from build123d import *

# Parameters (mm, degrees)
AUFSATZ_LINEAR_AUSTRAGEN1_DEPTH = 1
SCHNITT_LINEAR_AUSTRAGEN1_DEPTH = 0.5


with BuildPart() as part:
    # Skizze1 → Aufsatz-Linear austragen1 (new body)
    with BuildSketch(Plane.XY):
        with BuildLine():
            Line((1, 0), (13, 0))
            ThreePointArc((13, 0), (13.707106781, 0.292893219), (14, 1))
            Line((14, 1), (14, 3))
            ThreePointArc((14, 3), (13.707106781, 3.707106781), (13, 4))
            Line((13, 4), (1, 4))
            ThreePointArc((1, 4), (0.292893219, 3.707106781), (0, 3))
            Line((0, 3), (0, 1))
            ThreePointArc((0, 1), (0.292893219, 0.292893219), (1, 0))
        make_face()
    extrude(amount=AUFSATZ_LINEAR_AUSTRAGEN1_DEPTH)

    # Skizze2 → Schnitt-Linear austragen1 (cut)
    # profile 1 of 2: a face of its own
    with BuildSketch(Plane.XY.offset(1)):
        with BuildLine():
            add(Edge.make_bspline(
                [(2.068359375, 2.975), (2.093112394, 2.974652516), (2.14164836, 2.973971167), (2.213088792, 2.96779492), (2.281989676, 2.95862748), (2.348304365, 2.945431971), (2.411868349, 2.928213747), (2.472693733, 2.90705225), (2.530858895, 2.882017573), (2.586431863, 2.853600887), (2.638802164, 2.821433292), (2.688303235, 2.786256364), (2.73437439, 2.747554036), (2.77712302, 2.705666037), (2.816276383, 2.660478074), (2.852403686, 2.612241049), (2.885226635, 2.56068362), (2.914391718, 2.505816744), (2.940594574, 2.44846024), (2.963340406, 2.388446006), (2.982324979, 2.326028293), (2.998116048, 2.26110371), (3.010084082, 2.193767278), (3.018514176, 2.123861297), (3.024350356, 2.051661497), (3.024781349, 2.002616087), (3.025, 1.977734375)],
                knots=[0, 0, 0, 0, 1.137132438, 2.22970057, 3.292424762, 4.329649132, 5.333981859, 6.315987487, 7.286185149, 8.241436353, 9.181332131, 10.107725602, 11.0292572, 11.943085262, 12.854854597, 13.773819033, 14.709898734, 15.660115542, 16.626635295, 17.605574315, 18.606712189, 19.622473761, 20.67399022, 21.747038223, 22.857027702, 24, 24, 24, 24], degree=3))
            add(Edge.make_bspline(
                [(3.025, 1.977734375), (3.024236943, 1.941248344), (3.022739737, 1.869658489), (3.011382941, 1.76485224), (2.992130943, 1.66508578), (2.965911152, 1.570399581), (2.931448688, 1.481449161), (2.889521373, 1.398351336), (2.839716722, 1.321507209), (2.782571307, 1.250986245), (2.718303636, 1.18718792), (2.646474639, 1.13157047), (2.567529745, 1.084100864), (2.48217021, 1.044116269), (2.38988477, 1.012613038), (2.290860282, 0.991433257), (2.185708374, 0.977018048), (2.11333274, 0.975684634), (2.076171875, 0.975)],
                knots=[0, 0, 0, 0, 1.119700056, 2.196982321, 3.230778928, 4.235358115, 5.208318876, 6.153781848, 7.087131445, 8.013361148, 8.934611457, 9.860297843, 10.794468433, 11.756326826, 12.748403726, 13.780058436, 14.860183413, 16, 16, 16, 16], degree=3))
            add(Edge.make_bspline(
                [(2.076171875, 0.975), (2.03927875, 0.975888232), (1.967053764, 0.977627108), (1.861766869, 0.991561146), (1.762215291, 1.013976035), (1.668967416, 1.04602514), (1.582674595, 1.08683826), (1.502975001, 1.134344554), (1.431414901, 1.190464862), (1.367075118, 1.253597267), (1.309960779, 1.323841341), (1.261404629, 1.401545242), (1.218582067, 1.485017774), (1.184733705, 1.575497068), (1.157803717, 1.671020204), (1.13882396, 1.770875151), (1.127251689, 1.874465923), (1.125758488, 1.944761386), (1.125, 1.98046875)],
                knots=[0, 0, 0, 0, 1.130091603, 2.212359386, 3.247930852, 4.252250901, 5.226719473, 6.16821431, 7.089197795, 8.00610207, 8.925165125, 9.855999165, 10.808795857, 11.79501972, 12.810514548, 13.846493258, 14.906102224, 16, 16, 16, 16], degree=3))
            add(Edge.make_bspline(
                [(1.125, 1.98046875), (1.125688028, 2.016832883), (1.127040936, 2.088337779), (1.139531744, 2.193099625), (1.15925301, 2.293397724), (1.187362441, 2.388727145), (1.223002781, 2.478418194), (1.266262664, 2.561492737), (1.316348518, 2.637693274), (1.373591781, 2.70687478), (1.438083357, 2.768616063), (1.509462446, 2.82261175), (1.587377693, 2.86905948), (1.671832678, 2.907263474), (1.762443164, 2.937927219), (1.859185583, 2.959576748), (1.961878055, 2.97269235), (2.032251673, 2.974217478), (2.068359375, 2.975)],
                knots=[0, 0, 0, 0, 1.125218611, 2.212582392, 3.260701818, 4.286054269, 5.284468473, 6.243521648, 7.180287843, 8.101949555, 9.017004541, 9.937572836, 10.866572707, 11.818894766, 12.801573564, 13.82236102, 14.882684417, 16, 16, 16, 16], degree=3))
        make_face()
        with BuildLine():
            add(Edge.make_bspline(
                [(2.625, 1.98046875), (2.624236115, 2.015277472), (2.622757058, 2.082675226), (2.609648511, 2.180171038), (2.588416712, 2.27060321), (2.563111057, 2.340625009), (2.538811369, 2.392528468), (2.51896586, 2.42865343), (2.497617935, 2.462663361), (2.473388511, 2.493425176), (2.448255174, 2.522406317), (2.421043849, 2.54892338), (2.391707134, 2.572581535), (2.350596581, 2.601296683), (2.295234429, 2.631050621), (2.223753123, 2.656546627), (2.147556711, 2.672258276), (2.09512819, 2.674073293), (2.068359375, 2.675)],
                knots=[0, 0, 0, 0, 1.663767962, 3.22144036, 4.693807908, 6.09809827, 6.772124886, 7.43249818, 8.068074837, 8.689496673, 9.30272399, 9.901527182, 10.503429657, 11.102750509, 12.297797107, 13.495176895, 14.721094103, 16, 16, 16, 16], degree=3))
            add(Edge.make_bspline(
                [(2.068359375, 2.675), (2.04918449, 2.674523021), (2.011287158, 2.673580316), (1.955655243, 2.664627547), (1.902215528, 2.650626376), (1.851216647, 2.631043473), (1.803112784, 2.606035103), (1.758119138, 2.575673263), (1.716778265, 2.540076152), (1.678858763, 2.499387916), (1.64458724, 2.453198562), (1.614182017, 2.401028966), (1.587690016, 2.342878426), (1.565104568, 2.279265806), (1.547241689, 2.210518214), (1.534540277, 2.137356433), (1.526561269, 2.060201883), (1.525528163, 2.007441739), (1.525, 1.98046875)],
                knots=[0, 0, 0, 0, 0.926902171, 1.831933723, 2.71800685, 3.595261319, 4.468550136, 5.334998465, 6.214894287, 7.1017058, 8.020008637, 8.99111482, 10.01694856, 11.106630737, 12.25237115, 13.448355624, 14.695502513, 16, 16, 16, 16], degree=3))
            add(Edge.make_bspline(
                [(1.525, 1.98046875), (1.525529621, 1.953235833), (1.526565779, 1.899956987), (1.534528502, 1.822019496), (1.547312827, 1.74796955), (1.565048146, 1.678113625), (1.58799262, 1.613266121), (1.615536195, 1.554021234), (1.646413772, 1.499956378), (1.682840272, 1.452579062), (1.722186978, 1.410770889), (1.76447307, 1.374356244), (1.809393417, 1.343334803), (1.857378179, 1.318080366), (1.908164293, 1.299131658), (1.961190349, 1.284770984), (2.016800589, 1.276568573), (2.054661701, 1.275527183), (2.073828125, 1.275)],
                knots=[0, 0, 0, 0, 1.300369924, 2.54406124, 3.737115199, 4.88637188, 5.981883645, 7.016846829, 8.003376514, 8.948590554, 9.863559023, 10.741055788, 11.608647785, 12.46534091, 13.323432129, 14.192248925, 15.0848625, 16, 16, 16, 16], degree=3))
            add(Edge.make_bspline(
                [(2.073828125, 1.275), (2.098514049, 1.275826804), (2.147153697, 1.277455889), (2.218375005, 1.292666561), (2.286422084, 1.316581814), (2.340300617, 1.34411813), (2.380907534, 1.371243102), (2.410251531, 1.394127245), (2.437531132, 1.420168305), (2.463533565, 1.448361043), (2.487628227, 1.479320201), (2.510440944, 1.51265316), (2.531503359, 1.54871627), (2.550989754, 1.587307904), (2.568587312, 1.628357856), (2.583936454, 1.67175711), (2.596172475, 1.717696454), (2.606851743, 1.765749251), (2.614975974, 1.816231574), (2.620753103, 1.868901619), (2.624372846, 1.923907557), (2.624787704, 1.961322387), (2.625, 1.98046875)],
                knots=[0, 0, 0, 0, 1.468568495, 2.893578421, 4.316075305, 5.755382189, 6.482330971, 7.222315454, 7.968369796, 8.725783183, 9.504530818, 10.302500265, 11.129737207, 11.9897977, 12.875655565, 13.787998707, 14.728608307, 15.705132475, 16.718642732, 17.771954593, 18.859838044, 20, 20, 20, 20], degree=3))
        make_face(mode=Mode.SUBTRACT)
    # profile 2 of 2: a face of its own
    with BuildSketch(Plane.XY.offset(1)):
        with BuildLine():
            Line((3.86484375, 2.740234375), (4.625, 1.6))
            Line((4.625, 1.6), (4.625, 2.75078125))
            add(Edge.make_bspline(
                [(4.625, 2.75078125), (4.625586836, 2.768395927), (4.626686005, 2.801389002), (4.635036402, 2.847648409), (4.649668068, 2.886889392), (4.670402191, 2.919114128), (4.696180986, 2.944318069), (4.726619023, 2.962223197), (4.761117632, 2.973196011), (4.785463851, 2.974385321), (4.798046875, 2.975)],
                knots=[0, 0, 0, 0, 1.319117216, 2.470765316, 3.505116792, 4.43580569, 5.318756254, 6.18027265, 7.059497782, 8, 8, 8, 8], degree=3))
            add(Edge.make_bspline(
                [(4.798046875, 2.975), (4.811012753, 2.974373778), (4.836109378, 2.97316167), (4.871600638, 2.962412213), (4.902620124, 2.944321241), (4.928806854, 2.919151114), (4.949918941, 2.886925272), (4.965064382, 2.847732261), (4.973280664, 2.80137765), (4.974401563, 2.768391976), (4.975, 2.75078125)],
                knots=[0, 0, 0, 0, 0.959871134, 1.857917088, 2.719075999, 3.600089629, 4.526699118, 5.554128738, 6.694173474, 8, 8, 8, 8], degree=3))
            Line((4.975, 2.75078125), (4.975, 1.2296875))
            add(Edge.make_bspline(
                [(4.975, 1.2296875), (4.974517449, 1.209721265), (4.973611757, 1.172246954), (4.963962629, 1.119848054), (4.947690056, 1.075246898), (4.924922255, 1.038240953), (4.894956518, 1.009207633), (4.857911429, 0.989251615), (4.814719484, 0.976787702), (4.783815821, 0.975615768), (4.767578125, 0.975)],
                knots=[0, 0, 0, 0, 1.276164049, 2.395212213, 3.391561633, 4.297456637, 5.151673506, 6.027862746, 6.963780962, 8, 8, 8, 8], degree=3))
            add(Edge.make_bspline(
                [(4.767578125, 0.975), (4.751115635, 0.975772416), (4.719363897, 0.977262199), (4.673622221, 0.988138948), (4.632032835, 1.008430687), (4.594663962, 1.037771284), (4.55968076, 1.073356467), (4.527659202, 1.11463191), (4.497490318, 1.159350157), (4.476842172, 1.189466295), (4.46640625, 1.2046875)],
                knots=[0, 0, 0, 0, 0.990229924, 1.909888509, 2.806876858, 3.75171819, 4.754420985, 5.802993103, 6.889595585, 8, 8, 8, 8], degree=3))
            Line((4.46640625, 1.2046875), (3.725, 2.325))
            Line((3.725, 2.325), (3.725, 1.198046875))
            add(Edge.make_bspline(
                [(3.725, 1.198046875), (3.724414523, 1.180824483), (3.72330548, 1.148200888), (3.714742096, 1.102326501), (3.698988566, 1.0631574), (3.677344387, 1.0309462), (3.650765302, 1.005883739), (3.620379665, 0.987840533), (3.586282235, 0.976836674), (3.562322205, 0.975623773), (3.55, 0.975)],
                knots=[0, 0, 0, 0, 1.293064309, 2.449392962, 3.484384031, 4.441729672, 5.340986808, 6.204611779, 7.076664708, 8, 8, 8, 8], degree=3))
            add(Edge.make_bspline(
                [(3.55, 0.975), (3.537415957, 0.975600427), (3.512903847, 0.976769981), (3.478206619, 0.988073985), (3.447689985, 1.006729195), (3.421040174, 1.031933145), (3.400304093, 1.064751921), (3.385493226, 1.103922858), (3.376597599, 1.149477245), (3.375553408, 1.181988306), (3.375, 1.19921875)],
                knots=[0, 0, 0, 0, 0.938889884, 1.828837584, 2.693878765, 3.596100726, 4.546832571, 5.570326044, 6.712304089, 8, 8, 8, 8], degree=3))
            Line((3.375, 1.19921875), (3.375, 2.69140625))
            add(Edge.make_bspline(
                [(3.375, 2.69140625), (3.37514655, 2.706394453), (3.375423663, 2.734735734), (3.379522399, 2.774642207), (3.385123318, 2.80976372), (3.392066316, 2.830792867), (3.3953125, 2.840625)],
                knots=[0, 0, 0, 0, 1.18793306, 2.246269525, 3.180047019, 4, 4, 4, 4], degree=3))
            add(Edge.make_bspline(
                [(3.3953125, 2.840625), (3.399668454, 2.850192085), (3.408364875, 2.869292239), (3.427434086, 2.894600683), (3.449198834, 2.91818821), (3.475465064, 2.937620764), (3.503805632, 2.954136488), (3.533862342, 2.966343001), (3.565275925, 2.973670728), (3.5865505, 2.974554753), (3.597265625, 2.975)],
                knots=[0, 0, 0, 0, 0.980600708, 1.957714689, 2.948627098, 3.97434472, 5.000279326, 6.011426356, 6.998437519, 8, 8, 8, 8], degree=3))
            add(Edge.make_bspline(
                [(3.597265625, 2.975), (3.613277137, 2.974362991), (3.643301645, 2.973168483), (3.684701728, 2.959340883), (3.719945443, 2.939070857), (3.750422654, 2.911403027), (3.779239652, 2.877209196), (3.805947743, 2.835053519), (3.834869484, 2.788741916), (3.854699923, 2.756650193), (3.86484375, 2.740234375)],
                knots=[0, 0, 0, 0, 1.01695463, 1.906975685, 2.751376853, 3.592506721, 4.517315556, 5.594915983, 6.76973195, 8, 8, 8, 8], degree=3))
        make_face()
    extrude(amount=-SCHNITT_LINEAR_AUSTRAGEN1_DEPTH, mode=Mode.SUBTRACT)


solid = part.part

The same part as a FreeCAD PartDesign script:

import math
import FreeCAD as App
import Part
import Sketcher

doc = App.newDocument("Part")
body = doc.addObject("PartDesign::Body", "Body")

# Sketch on XY plane
sketch1 = body.newObject("Sketcher::SketchObject", "Sketch")
sketch1.AttachmentSupport = (doc.getObject("XY_Plane"), [""])
sketch1.MapMode = "FlatFace"
sketch1.addGeometry([
    Part.LineSegment(App.Vector(1, 0, 0), App.Vector(13, 0, 0)),  # 0
    Part.ArcOfCircle(Part.Circle(App.Vector(13, 1, 0), App.Vector(0, 0, 1), 1), math.radians(-90), math.radians(0)),  # 1
    Part.LineSegment(App.Vector(14, 1, 0), App.Vector(14, 3, 0)),  # 2
    Part.ArcOfCircle(Part.Circle(App.Vector(13, 3, 0), App.Vector(0, 0, 1), 1), math.radians(0), math.radians(90)),  # 3
    Part.LineSegment(App.Vector(13, 4, 0), App.Vector(1, 4, 0)),  # 4
    Part.ArcOfCircle(Part.Circle(App.Vector(1, 3, 0), App.Vector(0, 0, 1), 1), math.radians(90), math.radians(180)),  # 5
    Part.LineSegment(App.Vector(0, 3, 0), App.Vector(0, 1, 0)),  # 6
    Part.ArcOfCircle(Part.Circle(App.Vector(1, 1, 0), App.Vector(0, 0, 1), 1), math.radians(-180), math.radians(-90)),  # 7
], False)
sketch1.addConstraint([
    Sketcher.Constraint("Tangent", 0, 2, 1, 1),
    Sketcher.Constraint("Tangent", 1, 2, 2, 1),
    Sketcher.Constraint("Tangent", 2, 2, 3, 1),
    Sketcher.Constraint("Tangent", 3, 2, 4, 1),
    Sketcher.Constraint("Tangent", 4, 2, 5, 1),
    Sketcher.Constraint("Tangent", 5, 2, 6, 1),
    Sketcher.Constraint("Tangent", 6, 2, 7, 1),
    Sketcher.Constraint("Tangent", 7, 2, 0, 1),
    Sketcher.Constraint("Horizontal", 0),
    Sketcher.Constraint("Vertical", 2),
    Sketcher.Constraint("Horizontal", 4),
    Sketcher.Constraint("Vertical", 6),
    Sketcher.Constraint("Equal", 1, 3),
    Sketcher.Constraint("Equal", 3, 5),
    Sketcher.Constraint("Equal", 5, 7),
    Sketcher.Constraint("PointOnObject", 0, 2, -1),
    Sketcher.Constraint("PointOnObject", 5, 2, -2),
    Sketcher.Constraint("Radius", 1, 1.0),
    Sketcher.Constraint("DistanceX", 0, 1, 0, 2, 12.0),
    Sketcher.Constraint("DistanceY", 2, 1, 2, 2, 2.0),
])
pad1 = body.newObject("PartDesign::Pad", "Pad")
pad1.Profile = sketch1
pad1.Length = 1

# Sketch on XY plane
sketch2 = body.newObject("Sketcher::SketchObject", "Sketch001")
sketch2.AttachmentSupport = (doc.getObject("XY_Plane"), [""])
sketch2.MapMode = "FlatFace"
sketch2.AttachmentOffset = App.Placement(App.Vector(0, 0, 1), App.Rotation())
sketch2.addGeometry([
    Part.BSplineCurve([App.Vector(2.068359, 2.975, 0), App.Vector(2.093112, 2.974653, 0), App.Vector(2.141648, 2.973971, 0), App.Vector(2.213089, 2.967795, 0), App.Vector(2.28199, 2.958627, 0), App.Vector(2.348304, 2.945432, 0), App.Vector(2.411868, 2.928214, 0), App.Vector(2.472694, 2.907052, 0), App.Vector(2.530859, 2.882018, 0), App.Vector(2.586432, 2.853601, 0), App.Vector(2.638802, 2.821433, 0), App.Vector(2.688303, 2.786256, 0), App.Vector(2.734374, 2.747554, 0), App.Vector(2.777123, 2.705666, 0), App.Vector(2.816276, 2.660478, 0), App.Vector(2.852404, 2.612241, 0), App.Vector(2.885227, 2.560684, 0), App.Vector(2.914392, 2.505817, 0), App.Vector(2.940595, 2.44846, 0), App.Vector(2.96334, 2.388446, 0), App.Vector(2.982325, 2.326028, 0), App.Vector(2.998116, 2.261104, 0), App.Vector(3.010084, 2.193767, 0), App.Vector(3.018514, 2.123861, 0), App.Vector(3.02435, 2.051661, 0), App.Vector(3.024781, 2.002616, 0), App.Vector(3.025, 1.977734, 0)], [4, 1, 1, 1, 1, 1, 1, 1, 1, 1, 1, 1, 1, 1, 1, 1, 1, 1, 1, 1, 1, 1, 1, 1, 4], [0, 1.137132438, 2.22970057, 3.292424762, 4.329649132, 5.333981859, 6.315987487, 7.286185149, 8.241436353, 9.181332131, 10.107725602, 11.0292572, 11.943085262, 12.854854597, 13.773819033, 14.709898734, 15.660115542, 16.626635295, 17.605574315, 18.606712189, 19.622473761, 20.67399022, 21.747038223, 22.857027702, 24], False, 3, [1, 1, 1, 1, 1, 1, 1, 1, 1, 1, 1, 1, 1, 1, 1, 1, 1, 1, 1, 1, 1, 1, 1, 1, 1, 1, 1], False),  # 0
    Part.BSplineCurve([App.Vector(1.125, 1.980469, 0), App.Vector(1.125688, 2.016833, 0), App.Vector(1.127041, 2.088338, 0), App.Vector(1.139532, 2.1931, 0), App.Vector(1.159253, 2.293398, 0), App.Vector(1.187362, 2.388727, 0), App.Vector(1.223003, 2.478418, 0), App.Vector(1.266263, 2.561493, 0), App.Vector(1.316349, 2.637693, 0), App.Vector(1.373592, 2.706875, 0), App.Vector(1.438083, 2.768616, 0), App.Vector(1.509462, 2.822612, 0), App.Vector(1.587378, 2.869059, 0), App.Vector(1.671833, 2.907263, 0), App.Vector(1.762443, 2.937927, 0), App.Vector(1.859186, 2.959577, 0), App.Vector(1.961878, 2.972692, 0), App.Vector(2.032252, 2.974217, 0), App.Vector(2.068359, 2.975, 0)], [4, 1, 1, 1, 1, 1, 1, 1, 1, 1, 1, 1, 1, 1, 1, 1, 4], [0, 1.125218611, 2.212582392, 3.260701818, 4.286054269, 5.284468473, 6.243521648, 7.180287843, 8.101949555, 9.017004541, 9.937572836, 10.866572707, 11.818894766, 12.801573564, 13.82236102, 14.882684417, 16], False, 3, [1, 1, 1, 1, 1, 1, 1, 1, 1, 1, 1, 1, 1, 1, 1, 1, 1, 1, 1], False),  # 1
    Part.BSplineCurve([App.Vector(2.076172, 0.975, 0), App.Vector(2.039279, 0.975888, 0), App.Vector(1.967054, 0.977627, 0), App.Vector(1.861767, 0.991561, 0), App.Vector(1.762215, 1.013976, 0), App.Vector(1.668967, 1.046025, 0), App.Vector(1.582675, 1.086838, 0), App.Vector(1.502975, 1.134345, 0), App.Vector(1.431415, 1.190465, 0), App.Vector(1.367075, 1.253597, 0), App.Vector(1.309961, 1.323841, 0), App.Vector(1.261405, 1.401545, 0), App.Vector(1.218582, 1.485018, 0), App.Vector(1.184734, 1.575497, 0), App.Vector(1.157804, 1.67102, 0), App.Vector(1.138824, 1.770875, 0), App.Vector(1.127252, 1.874466, 0), App.Vector(1.125758, 1.944761, 0), App.Vector(1.125, 1.980469, 0)], [4, 1, 1, 1, 1, 1, 1, 1, 1, 1, 1, 1, 1, 1, 1, 1, 4], [0, 1.130091603, 2.212359386, 3.247930852, 4.252250901, 5.226719473, 6.16821431, 7.089197795, 8.00610207, 8.925165125, 9.855999165, 10.808795857, 11.79501972, 12.810514548, 13.846493258, 14.906102224, 16], False, 3, [1, 1, 1, 1, 1, 1, 1, 1, 1, 1, 1, 1, 1, 1, 1, 1, 1, 1, 1], False),  # 2
    Part.BSplineCurve([App.Vector(3.025, 1.977734, 0), App.Vector(3.024237, 1.941248, 0), App.Vector(3.02274, 1.869658, 0), App.Vector(3.011383, 1.764852, 0), App.Vector(2.992131, 1.665086, 0), App.Vector(2.965911, 1.5704, 0), App.Vector(2.931449, 1.481449, 0), App.Vector(2.889521, 1.398351, 0), App.Vector(2.839717, 1.321507, 0), App.Vector(2.782571, 1.250986, 0), App.Vector(2.718304, 1.187188, 0), App.Vector(2.646475, 1.13157, 0), App.Vector(2.56753, 1.084101, 0), App.Vector(2.48217, 1.044116, 0), App.Vector(2.389885, 1.012613, 0), App.Vector(2.29086, 0.991433, 0), App.Vector(2.185708, 0.977018, 0), App.Vector(2.113333, 0.975685, 0), App.Vector(2.076172, 0.975, 0)], [4, 1, 1, 1, 1, 1, 1, 1, 1, 1, 1, 1, 1, 1, 1, 1, 4], [0, 1.119700056, 2.196982321, 3.230778928, 4.235358115, 5.208318876, 6.153781848, 7.087131445, 8.013361148, 8.934611457, 9.860297843, 10.794468433, 11.756326826, 12.748403726, 13.780058436, 14.860183413, 16], False, 3, [1, 1, 1, 1, 1, 1, 1, 1, 1, 1, 1, 1, 1, 1, 1, 1, 1, 1, 1], False),  # 3
    Part.BSplineCurve([App.Vector(2.073828, 1.275, 0), App.Vector(2.098514, 1.275827, 0), App.Vector(2.147154, 1.277456, 0), App.Vector(2.218375, 1.292667, 0), App.Vector(2.286422, 1.316582, 0), App.Vector(2.340301, 1.344118, 0), App.Vector(2.380908, 1.371243, 0), App.Vector(2.410252, 1.394127, 0), App.Vector(2.437531, 1.420168, 0), App.Vector(2.463534, 1.448361, 0), App.Vector(2.487628, 1.47932, 0), App.Vector(2.510441, 1.512653, 0), App.Vector(2.531503, 1.548716, 0), App.Vector(2.55099, 1.587308, 0), App.Vector(2.568587, 1.628358, 0), App.Vector(2.583936, 1.671757, 0), App.Vector(2.596172, 1.717696, 0), App.Vector(2.606852, 1.765749, 0), App.Vector(2.614976, 1.816232, 0), App.Vector(2.620753, 1.868902, 0), App.Vector(2.624373, 1.923908, 0), App.Vector(2.624788, 1.961322, 0), App.Vector(2.625, 1.980469, 0)], [4, 1, 1, 1, 1, 1, 1, 1, 1, 1, 1, 1, 1, 1, 1, 1, 1, 1, 1, 1, 4], [0, 1.468568495, 2.893578421, 4.316075305, 5.755382189, 6.482330971, 7.222315454, 7.968369796, 8.725783183, 9.504530818, 10.302500265, 11.129737207, 11.9897977, 12.875655565, 13.787998707, 14.728608307, 15.705132475, 16.718642732, 17.771954593, 18.859838044, 20], False, 3, [1, 1, 1, 1, 1, 1, 1, 1, 1, 1, 1, 1, 1, 1, 1, 1, 1, 1, 1, 1, 1, 1, 1], False),  # 4
    Part.BSplineCurve([App.Vector(1.525, 1.980469, 0), App.Vector(1.52553, 1.953236, 0), App.Vector(1.526566, 1.899957, 0), App.Vector(1.534529, 1.822019, 0), App.Vector(1.547313, 1.74797, 0), App.Vector(1.565048, 1.678114, 0), App.Vector(1.587993, 1.613266, 0), App.Vector(1.615536, 1.554021, 0), App.Vector(1.646414, 1.499956, 0), App.Vector(1.68284, 1.452579, 0), App.Vector(1.722187, 1.410771, 0), App.Vector(1.764473, 1.374356, 0), App.Vector(1.809393, 1.343335, 0), App.Vector(1.857378, 1.31808, 0), App.Vector(1.908164, 1.299132, 0), App.Vector(1.96119, 1.284771, 0), App.Vector(2.016801, 1.276569, 0), App.Vector(2.054662, 1.275527, 0), App.Vector(2.073828, 1.275, 0)], [4, 1, 1, 1, 1, 1, 1, 1, 1, 1, 1, 1, 1, 1, 1, 1, 4], [0, 1.300369924, 2.54406124, 3.737115199, 4.88637188, 5.981883645, 7.016846829, 8.003376514, 8.948590554, 9.863559023, 10.741055788, 11.608647785, 12.46534091, 13.323432129, 14.192248925, 15.0848625, 16], False, 3, [1, 1, 1, 1, 1, 1, 1, 1, 1, 1, 1, 1, 1, 1, 1, 1, 1, 1, 1], False),  # 5
    Part.BSplineCurve([App.Vector(2.068359, 2.675, 0), App.Vector(2.049184, 2.674523, 0), App.Vector(2.011287, 2.67358, 0), App.Vector(1.955655, 2.664628, 0), App.Vector(1.902216, 2.650626, 0), App.Vector(1.851217, 2.631043, 0), App.Vector(1.803113, 2.606035, 0), App.Vector(1.758119, 2.575673, 0), App.Vector(1.716778, 2.540076, 0), App.Vector(1.678859, 2.499388, 0), App.Vector(1.644587, 2.453199, 0), App.Vector(1.614182, 2.401029, 0), App.Vector(1.58769, 2.342878, 0), App.Vector(1.565105, 2.279266, 0), App.Vector(1.547242, 2.210518, 0), App.Vector(1.53454, 2.137356, 0), App.Vector(1.526561, 2.060202, 0), App.Vector(1.525528, 2.007442, 0), App.Vector(1.525, 1.980469, 0)], [4, 1, 1, 1, 1, 1, 1, 1, 1, 1, 1, 1, 1, 1, 1, 1, 4], [0, 0.926902171, 1.831933723, 2.71800685, 3.595261319, 4.468550136, 5.334998465, 6.214894287, 7.1017058, 8.020008637, 8.99111482, 10.01694856, 11.106630737, 12.25237115, 13.448355624, 14.695502513, 16], False, 3, [1, 1, 1, 1, 1, 1, 1, 1, 1, 1, 1, 1, 1, 1, 1, 1, 1, 1, 1], False),  # 6
    Part.BSplineCurve([App.Vector(2.625, 1.980469, 0), App.Vector(2.624236, 2.015277, 0), App.Vector(2.622757, 2.082675, 0), App.Vector(2.609649, 2.180171, 0), App.Vector(2.588417, 2.270603, 0), App.Vector(2.563111, 2.340625, 0), App.Vector(2.538811, 2.392528, 0), App.Vector(2.518966, 2.428653, 0), App.Vector(2.497618, 2.462663, 0), App.Vector(2.473389, 2.493425, 0), App.Vector(2.448255, 2.522406, 0), App.Vector(2.421044, 2.548923, 0), App.Vector(2.391707, 2.572582, 0), App.Vector(2.350597, 2.601297, 0), App.Vector(2.295234, 2.631051, 0), App.Vector(2.223753, 2.656547, 0), App.Vector(2.147557, 2.672258, 0), App.Vector(2.095128, 2.674073, 0), App.Vector(2.068359, 2.675, 0)], [4, 1, 1, 1, 1, 1, 1, 1, 1, 1, 1, 1, 1, 1, 1, 1, 4], [0, 1.663767962, 3.22144036, 4.693807908, 6.09809827, 6.772124886, 7.43249818, 8.068074837, 8.689496673, 9.30272399, 9.901527182, 10.503429657, 11.102750509, 12.297797107, 13.495176895, 14.721094103, 16], False, 3, [1, 1, 1, 1, 1, 1, 1, 1, 1, 1, 1, 1, 1, 1, 1, 1, 1, 1, 1], False),  # 7
    Part.LineSegment(App.Vector(4.625, 1.6, 0), App.Vector(3.864844, 2.740234, 0)),  # 8
    Part.BSplineCurve([App.Vector(3.597266, 2.975, 0), App.Vector(3.613277, 2.974363, 0), App.Vector(3.643302, 2.973168, 0), App.Vector(3.684702, 2.959341, 0), App.Vector(3.719945, 2.939071, 0), App.Vector(3.750423, 2.911403, 0), App.Vector(3.77924, 2.877209, 0), App.Vector(3.805948, 2.835054, 0), App.Vector(3.834869, 2.788742, 0), App.Vector(3.8547, 2.75665, 0), App.Vector(3.864844, 2.740234, 0)], [4, 1, 1, 1, 1, 1, 1, 1, 4], [0, 1.01695463, 1.906975685, 2.751376853, 3.592506721, 4.517315556, 5.594915983, 6.76973195, 8], False, 3, [1, 1, 1, 1, 1, 1, 1, 1, 1, 1, 1], False),  # 9
    Part.BSplineCurve([App.Vector(3.395313, 2.840625, 0), App.Vector(3.399668, 2.850192, 0), App.Vector(3.408365, 2.869292, 0), App.Vector(3.427434, 2.894601, 0), App.Vector(3.449199, 2.918188, 0), App.Vector(3.475465, 2.937621, 0), App.Vector(3.503806, 2.954136, 0), App.Vector(3.533862, 2.966343, 0), App.Vector(3.565276, 2.973671, 0), App.Vector(3.58655, 2.974555, 0), App.Vector(3.597266, 2.975, 0)], [4, 1, 1, 1, 1, 1, 1, 1, 4], [0, 0.980600708, 1.957714689, 2.948627098, 3.97434472, 5.000279326, 6.011426356, 6.998437519, 8], False, 3, [1, 1, 1, 1, 1, 1, 1, 1, 1, 1, 1], False),  # 10
    Part.BSplineCurve([App.Vector(3.375, 2.691406, 0), App.Vector(3.375147, 2.706394, 0), App.Vector(3.375424, 2.734736, 0), App.Vector(3.379522, 2.774642, 0), App.Vector(3.385123, 2.809764, 0), App.Vector(3.392066, 2.830793, 0), App.Vector(3.395313, 2.840625, 0)], [4, 1, 1, 1, 4], [0, 1.18793306, 2.246269525, 3.180047019, 4], False, 3, [1, 1, 1, 1, 1, 1, 1], False),  # 11
    Part.LineSegment(App.Vector(3.375, 2.691406, 0), App.Vector(3.375, 1.199219, 0)),  # 12
    Part.BSplineCurve([App.Vector(3.55, 0.975, 0), App.Vector(3.537416, 0.9756, 0), App.Vector(3.512904, 0.97677, 0), App.Vector(3.478207, 0.988074, 0), App.Vector(3.44769, 1.006729, 0), App.Vector(3.42104, 1.031933, 0), App.Vector(3.400304, 1.064752, 0), App.Vector(3.385493, 1.103923, 0), App.Vector(3.376598, 1.149477, 0), App.Vector(3.375553, 1.181988, 0), App.Vector(3.375, 1.199219, 0)], [4, 1, 1, 1, 1, 1, 1, 1, 4], [0, 0.938889884, 1.828837584, 2.693878765, 3.596100726, 4.546832571, 5.570326044, 6.712304089, 8], False, 3, [1, 1, 1, 1, 1, 1, 1, 1, 1, 1, 1], False),  # 13
    Part.BSplineCurve([App.Vector(3.725, 1.198047, 0), App.Vector(3.724415, 1.180824, 0), App.Vector(3.723305, 1.148201, 0), App.Vector(3.714742, 1.102327, 0), App.Vector(3.698989, 1.063157, 0), App.Vector(3.677344, 1.030946, 0), App.Vector(3.650765, 1.005884, 0), App.Vector(3.62038, 0.987841, 0), App.Vector(3.586282, 0.976837, 0), App.Vector(3.562322, 0.975624, 0), App.Vector(3.55, 0.975, 0)], [4, 1, 1, 1, 1, 1, 1, 1, 4], [0, 1.293064309, 2.449392962, 3.484384031, 4.441729672, 5.340986808, 6.204611779, 7.076664708, 8], False, 3, [1, 1, 1, 1, 1, 1, 1, 1, 1, 1, 1], False),  # 14
    Part.LineSegment(App.Vector(3.725, 1.198047, 0), App.Vector(3.725, 2.325, 0)),  # 15
    Part.LineSegment(App.Vector(3.725, 2.325, 0), App.Vector(4.466406, 1.204687, 0)),  # 16
    Part.BSplineCurve([App.Vector(4.767578, 0.975, 0), App.Vector(4.751116, 0.975772, 0), App.Vector(4.719364, 0.977262, 0), App.Vector(4.673622, 0.988139, 0), App.Vector(4.632033, 1.008431, 0), App.Vector(4.594664, 1.037771, 0), App.Vector(4.559681, 1.073356, 0), App.Vector(4.527659, 1.114632, 0), App.Vector(4.49749, 1.15935, 0), App.Vector(4.476842, 1.189466, 0), App.Vector(4.466406, 1.204687, 0)], [4, 1, 1, 1, 1, 1, 1, 1, 4], [0, 0.990229924, 1.909888509, 2.806876858, 3.75171819, 4.754420985, 5.802993103, 6.889595585, 8], False, 3, [1, 1, 1, 1, 1, 1, 1, 1, 1, 1, 1], False),  # 17
    Part.BSplineCurve([App.Vector(4.975, 1.229688, 0), App.Vector(4.974517, 1.209721, 0), App.Vector(4.973612, 1.172247, 0), App.Vector(4.963963, 1.119848, 0), App.Vector(4.94769, 1.075247, 0), App.Vector(4.924922, 1.038241, 0), App.Vector(4.894957, 1.009208, 0), App.Vector(4.857911, 0.989252, 0), App.Vector(4.814719, 0.976788, 0), App.Vector(4.783816, 0.975616, 0), App.Vector(4.767578, 0.975, 0)], [4, 1, 1, 1, 1, 1, 1, 1, 4], [0, 1.276164049, 2.395212213, 3.391561633, 4.297456637, 5.151673506, 6.027862746, 6.963780962, 8], False, 3, [1, 1, 1, 1, 1, 1, 1, 1, 1, 1, 1], False),  # 18
    Part.LineSegment(App.Vector(4.975, 1.229688, 0), App.Vector(4.975, 2.750781, 0)),  # 19
    Part.BSplineCurve([App.Vector(4.798047, 2.975, 0), App.Vector(4.811013, 2.974374, 0), App.Vector(4.836109, 2.973162, 0), App.Vector(4.871601, 2.962412, 0), App.Vector(4.90262, 2.944321, 0), App.Vector(4.928807, 2.919151, 0), App.Vector(4.949919, 2.886925, 0), App.Vector(4.965064, 2.847732, 0), App.Vector(4.973281, 2.801378, 0), App.Vector(4.974402, 2.768392, 0), App.Vector(4.975, 2.750781, 0)], [4, 1, 1, 1, 1, 1, 1, 1, 4], [0, 0.959871134, 1.857917088, 2.719075999, 3.600089629, 4.526699118, 5.554128738, 6.694173474, 8], False, 3, [1, 1, 1, 1, 1, 1, 1, 1, 1, 1, 1], False),  # 20
    Part.BSplineCurve([App.Vector(4.625, 2.750781, 0), App.Vector(4.625587, 2.768396, 0), App.Vector(4.626686, 2.801389, 0), App.Vector(4.635036, 2.847648, 0), App.Vector(4.649668, 2.886889, 0), App.Vector(4.670402, 2.919114, 0), App.Vector(4.696181, 2.944318, 0), App.Vector(4.726619, 2.962223, 0), App.Vector(4.761118, 2.973196, 0), App.Vector(4.785464, 2.974385, 0), App.Vector(4.798047, 2.975, 0)], [4, 1, 1, 1, 1, 1, 1, 1, 4], [0, 1.319117216, 2.470765316, 3.505116792, 4.43580569, 5.318756254, 6.18027265, 7.059497782, 8], False, 3, [1, 1, 1, 1, 1, 1, 1, 1, 1, 1, 1], False),  # 21
    Part.LineSegment(App.Vector(4.625, 2.750781, 0), App.Vector(4.625, 1.6, 0)),  # 22
], False)
sketch2.addConstraint([
    Sketcher.Constraint("Block", 0),
    Sketcher.Constraint("Block", 1),
    Sketcher.Constraint("Block", 2),
    Sketcher.Constraint("Block", 3),
    Sketcher.Constraint("Block", 4),
    Sketcher.Constraint("Block", 5),
    Sketcher.Constraint("Block", 6),
    Sketcher.Constraint("Block", 7),
    Sketcher.Constraint("Block", 9),
    Sketcher.Constraint("Block", 10),
    Sketcher.Constraint("Block", 11),
    Sketcher.Constraint("Block", 13),
    Sketcher.Constraint("Block", 14),
    Sketcher.Constraint("Block", 17),
    Sketcher.Constraint("Block", 18),
    Sketcher.Constraint("Block", 20),
    Sketcher.Constraint("Block", 21),
    Sketcher.Constraint("Coincident", 8, 2, 9, 2),
    Sketcher.Constraint("Coincident", 11, 1, 12, 1),
    Sketcher.Constraint("Coincident", 12, 2, 13, 2),
    Sketcher.Constraint("Coincident", 14, 1, 15, 1),
    Sketcher.Constraint("Coincident", 15, 2, 16, 1),
    Sketcher.Constraint("Coincident", 16, 2, 17, 2),
    Sketcher.Constraint("Coincident", 18, 1, 19, 1),
    Sketcher.Constraint("Coincident", 19, 2, 20, 2),
    Sketcher.Constraint("Coincident", 21, 1, 22, 1),
    Sketcher.Constraint("Coincident", 22, 2, 8, 1),
    Sketcher.Constraint("Vertical", 15),
    Sketcher.Constraint("Vertical", 22),
    Sketcher.Constraint("DistanceY", -1, 1, 22, 2, 1.6),
    Sketcher.Constraint("DistanceY", -1, 1, 15, 2, 2.325),
])
pocket1 = body.newObject("PartDesign::Pocket", "Pocket")
pocket1.Profile = sketch2
pocket1.Length = 0.5

doc.recompute()
